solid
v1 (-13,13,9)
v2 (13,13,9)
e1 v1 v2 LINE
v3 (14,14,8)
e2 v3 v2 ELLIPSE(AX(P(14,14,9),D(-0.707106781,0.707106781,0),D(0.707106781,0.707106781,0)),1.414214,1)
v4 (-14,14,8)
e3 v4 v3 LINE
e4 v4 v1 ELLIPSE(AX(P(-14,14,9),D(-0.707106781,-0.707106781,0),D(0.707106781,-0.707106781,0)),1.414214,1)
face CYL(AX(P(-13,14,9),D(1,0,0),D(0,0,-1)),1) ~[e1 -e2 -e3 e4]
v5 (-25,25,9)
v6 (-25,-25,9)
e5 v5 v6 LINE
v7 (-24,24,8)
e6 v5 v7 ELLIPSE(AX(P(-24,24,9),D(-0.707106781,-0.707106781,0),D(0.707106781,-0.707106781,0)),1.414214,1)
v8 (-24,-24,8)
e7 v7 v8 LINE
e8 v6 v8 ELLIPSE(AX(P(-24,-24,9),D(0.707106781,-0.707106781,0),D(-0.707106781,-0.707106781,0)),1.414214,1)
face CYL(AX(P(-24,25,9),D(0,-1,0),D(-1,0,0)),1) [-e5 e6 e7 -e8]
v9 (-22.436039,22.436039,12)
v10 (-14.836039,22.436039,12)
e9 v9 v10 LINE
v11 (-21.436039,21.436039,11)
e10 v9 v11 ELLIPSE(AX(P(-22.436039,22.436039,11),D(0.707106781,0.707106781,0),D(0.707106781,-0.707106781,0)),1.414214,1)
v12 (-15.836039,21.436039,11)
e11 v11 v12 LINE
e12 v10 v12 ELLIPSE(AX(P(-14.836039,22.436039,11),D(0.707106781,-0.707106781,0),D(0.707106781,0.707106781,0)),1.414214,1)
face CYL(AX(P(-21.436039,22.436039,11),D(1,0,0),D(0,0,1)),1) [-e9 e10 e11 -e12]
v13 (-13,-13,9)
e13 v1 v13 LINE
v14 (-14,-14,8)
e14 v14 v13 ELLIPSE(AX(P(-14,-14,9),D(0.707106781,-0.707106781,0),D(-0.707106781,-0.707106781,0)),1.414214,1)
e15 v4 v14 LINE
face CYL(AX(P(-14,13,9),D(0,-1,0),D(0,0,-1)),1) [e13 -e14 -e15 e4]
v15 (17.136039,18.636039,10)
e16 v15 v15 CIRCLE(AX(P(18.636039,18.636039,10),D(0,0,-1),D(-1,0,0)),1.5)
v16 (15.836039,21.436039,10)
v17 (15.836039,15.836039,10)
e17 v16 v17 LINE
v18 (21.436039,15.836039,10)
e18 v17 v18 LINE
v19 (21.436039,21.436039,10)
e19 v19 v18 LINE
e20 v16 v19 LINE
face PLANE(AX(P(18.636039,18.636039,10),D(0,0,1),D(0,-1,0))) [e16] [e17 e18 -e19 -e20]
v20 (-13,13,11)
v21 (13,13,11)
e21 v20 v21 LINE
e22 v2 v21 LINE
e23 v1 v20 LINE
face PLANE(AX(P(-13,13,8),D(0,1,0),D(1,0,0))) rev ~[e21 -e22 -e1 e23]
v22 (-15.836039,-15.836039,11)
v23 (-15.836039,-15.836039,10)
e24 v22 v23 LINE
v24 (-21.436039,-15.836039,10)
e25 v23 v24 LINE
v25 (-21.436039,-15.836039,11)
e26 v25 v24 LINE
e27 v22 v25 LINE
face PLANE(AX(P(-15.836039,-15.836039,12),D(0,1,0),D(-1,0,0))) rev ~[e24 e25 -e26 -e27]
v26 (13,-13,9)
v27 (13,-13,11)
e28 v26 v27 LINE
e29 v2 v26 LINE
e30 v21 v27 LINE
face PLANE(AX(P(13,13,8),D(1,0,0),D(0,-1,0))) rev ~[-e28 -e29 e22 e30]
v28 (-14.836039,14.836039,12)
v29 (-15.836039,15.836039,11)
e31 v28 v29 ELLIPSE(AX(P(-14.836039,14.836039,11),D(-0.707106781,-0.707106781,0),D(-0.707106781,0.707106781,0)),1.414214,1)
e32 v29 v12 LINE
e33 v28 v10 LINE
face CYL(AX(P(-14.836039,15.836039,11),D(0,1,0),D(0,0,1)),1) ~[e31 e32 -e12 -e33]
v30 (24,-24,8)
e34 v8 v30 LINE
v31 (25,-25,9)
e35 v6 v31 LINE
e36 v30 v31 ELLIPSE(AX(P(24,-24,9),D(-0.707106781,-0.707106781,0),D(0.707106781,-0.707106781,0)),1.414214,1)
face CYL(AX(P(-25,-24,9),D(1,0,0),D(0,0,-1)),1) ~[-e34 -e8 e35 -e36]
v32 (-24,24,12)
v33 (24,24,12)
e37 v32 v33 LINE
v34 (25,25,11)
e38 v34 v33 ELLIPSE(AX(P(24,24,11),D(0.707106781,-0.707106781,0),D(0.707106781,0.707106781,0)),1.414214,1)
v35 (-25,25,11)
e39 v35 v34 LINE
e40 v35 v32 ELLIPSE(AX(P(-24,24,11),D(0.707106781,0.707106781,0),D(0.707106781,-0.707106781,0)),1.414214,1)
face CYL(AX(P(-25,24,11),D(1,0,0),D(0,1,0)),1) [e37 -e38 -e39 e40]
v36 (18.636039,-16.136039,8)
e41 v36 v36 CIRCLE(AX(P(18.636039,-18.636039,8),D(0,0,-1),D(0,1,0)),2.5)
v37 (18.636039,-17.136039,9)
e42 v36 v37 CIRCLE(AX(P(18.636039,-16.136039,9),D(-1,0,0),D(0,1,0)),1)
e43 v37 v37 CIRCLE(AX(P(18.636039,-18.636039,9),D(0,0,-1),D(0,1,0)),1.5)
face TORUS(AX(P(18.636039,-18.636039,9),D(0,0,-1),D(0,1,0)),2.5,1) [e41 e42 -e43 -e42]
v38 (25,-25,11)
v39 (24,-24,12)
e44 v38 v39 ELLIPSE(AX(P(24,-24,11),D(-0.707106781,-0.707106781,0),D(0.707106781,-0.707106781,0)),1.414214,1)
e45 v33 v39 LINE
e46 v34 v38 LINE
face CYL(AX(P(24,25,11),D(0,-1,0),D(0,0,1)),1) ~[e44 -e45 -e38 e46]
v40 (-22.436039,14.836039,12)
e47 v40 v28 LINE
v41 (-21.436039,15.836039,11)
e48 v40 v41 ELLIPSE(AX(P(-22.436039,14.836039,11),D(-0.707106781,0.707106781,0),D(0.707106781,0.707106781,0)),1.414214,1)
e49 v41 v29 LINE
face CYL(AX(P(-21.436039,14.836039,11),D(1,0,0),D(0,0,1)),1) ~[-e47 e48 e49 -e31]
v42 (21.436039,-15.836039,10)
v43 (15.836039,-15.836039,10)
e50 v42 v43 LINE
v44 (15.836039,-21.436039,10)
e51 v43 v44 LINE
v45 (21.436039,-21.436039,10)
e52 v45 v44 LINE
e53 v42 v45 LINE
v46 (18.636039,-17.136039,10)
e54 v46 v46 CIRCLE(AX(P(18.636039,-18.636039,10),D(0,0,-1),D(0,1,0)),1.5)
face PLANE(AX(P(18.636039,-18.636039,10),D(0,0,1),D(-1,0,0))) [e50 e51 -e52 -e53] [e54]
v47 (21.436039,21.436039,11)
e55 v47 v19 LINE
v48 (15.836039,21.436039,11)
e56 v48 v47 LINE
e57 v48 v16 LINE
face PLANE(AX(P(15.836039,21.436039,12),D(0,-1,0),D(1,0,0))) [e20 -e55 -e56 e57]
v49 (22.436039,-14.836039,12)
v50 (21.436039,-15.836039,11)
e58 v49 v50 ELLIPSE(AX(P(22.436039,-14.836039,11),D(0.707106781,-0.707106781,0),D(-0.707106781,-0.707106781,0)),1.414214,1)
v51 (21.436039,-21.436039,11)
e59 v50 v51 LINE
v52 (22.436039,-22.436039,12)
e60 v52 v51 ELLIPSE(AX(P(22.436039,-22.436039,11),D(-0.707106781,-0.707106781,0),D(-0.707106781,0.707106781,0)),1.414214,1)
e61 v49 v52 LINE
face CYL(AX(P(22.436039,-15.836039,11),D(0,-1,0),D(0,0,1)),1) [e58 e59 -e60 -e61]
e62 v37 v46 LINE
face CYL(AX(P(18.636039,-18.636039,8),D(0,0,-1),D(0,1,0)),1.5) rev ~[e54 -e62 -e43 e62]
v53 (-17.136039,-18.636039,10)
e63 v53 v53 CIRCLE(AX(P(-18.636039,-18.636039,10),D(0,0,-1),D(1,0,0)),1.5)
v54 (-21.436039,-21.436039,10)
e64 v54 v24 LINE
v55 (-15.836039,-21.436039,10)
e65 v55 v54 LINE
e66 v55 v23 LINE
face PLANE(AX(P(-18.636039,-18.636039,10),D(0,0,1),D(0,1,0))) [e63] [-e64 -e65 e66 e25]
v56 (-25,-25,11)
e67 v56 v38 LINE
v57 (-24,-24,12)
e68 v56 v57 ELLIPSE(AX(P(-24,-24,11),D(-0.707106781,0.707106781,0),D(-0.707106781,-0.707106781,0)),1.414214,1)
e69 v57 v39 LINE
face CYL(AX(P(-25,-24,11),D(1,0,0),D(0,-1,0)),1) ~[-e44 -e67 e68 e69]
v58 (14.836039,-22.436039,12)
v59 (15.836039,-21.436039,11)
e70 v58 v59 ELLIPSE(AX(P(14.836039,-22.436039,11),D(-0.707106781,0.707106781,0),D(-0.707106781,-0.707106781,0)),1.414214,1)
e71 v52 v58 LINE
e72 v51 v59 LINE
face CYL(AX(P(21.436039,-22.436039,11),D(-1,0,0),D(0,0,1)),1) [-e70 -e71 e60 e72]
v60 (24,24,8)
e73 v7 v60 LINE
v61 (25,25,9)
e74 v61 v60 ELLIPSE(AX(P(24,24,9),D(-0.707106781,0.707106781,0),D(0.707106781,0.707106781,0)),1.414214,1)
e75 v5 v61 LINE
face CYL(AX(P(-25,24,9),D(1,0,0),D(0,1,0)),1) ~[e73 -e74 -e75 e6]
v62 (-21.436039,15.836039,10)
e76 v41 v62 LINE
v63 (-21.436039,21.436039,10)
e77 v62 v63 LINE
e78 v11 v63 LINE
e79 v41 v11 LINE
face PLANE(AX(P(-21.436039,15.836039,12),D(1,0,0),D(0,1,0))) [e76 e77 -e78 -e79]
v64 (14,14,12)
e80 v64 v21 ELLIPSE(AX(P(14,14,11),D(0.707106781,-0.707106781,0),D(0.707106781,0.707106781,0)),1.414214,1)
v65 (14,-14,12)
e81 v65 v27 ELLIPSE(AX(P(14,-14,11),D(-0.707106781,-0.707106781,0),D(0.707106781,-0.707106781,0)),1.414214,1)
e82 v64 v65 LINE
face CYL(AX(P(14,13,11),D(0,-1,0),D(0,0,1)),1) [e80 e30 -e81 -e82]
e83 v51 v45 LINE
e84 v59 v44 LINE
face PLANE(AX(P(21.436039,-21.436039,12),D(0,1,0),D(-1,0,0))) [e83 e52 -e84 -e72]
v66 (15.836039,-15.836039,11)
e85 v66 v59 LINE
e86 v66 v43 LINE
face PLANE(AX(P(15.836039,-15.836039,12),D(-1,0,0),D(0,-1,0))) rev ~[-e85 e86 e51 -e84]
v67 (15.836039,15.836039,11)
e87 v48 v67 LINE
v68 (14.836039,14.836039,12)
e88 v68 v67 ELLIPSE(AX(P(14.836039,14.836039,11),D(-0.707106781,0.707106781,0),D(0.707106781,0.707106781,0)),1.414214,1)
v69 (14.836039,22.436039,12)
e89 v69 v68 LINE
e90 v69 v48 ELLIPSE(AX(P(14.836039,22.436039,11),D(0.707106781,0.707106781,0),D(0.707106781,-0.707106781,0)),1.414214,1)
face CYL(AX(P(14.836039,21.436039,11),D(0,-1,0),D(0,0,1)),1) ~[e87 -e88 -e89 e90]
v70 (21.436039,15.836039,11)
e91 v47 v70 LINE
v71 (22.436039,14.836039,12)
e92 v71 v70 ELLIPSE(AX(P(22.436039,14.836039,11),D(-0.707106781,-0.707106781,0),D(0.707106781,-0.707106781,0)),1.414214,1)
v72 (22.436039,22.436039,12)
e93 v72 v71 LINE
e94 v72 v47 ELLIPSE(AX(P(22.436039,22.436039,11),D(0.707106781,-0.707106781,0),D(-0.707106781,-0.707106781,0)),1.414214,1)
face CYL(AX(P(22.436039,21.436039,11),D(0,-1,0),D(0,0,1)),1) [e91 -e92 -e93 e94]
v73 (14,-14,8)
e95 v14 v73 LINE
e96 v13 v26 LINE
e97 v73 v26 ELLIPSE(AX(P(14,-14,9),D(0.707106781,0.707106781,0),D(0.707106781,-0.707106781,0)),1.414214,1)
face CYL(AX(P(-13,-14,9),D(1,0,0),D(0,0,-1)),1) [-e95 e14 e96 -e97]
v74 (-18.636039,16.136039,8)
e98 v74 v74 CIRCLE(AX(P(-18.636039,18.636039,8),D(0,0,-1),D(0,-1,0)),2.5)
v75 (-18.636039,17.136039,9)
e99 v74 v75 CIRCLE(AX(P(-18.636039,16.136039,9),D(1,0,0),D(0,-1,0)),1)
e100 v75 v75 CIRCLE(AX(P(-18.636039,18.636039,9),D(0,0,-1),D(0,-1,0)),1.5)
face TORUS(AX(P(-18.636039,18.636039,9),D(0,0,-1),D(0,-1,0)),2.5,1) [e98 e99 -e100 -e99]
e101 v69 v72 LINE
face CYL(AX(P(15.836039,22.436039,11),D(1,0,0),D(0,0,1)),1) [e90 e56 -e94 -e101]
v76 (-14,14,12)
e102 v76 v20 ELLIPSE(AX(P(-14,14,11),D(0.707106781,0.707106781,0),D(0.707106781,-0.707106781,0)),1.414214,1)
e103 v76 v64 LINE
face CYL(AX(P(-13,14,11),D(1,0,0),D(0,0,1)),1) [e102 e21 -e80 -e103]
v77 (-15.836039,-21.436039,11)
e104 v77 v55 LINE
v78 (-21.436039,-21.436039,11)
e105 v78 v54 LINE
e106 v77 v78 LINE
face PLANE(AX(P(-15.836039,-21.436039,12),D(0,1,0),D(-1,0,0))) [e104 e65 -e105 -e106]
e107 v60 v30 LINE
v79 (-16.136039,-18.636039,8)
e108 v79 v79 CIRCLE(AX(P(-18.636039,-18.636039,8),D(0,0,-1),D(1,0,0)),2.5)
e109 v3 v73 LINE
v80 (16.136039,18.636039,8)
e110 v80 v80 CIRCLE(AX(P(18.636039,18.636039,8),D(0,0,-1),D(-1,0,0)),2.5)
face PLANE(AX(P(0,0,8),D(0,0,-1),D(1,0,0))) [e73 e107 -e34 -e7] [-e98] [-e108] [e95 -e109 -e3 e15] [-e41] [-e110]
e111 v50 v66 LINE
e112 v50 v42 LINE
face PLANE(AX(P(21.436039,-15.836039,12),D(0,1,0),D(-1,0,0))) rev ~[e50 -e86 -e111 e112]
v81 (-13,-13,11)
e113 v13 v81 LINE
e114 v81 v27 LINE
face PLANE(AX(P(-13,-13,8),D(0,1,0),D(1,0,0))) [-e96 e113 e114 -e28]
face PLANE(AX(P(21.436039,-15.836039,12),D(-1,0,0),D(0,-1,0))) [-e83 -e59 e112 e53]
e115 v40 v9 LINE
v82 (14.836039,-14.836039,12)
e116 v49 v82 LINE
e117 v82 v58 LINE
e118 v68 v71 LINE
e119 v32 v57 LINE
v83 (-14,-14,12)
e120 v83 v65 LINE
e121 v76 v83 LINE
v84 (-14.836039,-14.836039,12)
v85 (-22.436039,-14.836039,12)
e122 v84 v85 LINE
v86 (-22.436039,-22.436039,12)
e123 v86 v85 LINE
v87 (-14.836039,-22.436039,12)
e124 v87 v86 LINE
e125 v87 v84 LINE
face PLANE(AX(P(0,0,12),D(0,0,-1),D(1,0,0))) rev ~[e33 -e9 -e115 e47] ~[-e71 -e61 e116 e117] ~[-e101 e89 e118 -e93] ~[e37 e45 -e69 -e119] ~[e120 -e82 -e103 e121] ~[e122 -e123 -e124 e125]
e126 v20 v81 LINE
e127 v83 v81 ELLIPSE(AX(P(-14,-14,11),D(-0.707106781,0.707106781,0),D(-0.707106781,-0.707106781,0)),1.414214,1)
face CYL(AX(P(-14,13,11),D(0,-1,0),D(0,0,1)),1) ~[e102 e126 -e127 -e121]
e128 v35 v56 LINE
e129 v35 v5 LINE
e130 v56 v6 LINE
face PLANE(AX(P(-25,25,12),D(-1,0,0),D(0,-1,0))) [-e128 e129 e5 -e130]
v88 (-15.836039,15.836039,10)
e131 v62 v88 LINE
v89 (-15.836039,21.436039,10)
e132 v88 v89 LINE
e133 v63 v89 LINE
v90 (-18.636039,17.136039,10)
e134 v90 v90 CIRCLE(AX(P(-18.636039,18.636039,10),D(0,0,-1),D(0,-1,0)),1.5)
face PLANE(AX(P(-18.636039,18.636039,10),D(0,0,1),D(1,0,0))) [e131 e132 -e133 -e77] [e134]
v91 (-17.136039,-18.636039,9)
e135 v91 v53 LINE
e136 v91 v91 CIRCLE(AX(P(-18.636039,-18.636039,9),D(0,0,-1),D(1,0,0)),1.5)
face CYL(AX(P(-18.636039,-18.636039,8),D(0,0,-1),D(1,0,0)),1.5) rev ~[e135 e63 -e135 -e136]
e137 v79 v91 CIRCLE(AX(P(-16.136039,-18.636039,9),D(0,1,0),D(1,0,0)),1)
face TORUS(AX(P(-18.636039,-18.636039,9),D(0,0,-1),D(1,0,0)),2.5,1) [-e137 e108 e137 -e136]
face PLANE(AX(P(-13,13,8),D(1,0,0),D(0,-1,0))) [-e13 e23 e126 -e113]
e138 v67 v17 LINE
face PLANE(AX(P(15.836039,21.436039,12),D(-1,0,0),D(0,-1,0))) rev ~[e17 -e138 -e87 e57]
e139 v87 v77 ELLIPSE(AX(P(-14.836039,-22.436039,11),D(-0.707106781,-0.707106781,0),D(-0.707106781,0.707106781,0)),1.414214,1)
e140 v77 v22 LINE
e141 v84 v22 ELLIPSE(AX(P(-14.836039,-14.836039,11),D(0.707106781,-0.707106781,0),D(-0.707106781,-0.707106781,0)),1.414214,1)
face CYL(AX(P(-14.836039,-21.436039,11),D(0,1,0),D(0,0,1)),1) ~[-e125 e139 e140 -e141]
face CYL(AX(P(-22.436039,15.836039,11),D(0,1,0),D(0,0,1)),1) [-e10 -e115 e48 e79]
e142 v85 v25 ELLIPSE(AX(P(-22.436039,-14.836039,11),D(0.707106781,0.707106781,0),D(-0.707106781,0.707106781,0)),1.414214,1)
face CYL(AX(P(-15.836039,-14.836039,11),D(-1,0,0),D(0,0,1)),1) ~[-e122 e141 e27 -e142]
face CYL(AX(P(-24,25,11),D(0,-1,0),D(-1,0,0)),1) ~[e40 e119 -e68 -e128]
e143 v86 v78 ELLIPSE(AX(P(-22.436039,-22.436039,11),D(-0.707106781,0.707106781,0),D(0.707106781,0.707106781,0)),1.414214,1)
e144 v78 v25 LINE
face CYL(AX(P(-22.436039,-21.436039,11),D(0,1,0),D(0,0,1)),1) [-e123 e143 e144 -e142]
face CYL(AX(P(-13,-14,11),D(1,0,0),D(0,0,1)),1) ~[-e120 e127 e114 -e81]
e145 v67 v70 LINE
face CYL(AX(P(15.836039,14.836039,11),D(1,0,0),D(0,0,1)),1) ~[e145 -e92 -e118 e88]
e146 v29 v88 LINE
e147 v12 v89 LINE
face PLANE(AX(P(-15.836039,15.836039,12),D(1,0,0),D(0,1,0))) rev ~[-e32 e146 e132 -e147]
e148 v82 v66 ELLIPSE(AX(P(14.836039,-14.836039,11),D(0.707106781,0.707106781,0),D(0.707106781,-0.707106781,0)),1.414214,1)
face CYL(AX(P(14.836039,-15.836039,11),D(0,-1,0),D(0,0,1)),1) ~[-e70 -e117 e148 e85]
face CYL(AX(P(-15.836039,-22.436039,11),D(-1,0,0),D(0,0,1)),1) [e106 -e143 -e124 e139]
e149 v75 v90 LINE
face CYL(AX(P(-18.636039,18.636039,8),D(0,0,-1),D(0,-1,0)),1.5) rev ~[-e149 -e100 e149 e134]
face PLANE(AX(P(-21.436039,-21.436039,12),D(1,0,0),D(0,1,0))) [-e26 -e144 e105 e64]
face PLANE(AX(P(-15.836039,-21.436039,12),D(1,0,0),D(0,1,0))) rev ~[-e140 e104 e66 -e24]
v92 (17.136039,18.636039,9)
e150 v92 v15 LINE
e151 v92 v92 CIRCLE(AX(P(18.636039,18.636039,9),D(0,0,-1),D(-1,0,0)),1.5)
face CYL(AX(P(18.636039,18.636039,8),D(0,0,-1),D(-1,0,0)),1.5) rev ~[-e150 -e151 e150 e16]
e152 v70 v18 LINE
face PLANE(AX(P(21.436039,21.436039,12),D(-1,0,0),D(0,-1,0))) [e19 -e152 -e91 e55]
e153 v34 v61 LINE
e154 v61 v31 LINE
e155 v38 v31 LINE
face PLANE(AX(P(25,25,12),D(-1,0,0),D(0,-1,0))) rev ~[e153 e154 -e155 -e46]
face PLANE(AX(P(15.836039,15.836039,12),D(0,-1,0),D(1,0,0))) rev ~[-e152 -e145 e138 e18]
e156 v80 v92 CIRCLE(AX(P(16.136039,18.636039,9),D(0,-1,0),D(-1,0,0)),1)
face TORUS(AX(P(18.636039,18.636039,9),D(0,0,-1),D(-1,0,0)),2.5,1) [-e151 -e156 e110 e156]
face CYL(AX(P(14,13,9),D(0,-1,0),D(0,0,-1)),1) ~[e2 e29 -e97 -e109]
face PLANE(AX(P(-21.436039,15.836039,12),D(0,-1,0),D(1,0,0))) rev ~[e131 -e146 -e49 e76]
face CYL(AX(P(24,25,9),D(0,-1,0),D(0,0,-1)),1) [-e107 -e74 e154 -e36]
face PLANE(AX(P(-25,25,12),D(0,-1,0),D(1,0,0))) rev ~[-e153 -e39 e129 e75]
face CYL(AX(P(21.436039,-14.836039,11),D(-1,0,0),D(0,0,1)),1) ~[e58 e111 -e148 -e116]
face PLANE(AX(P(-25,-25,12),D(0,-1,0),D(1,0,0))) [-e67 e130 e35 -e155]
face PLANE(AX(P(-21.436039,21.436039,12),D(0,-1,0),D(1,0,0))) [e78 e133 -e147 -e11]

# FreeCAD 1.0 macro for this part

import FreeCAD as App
import Part
import Sketcher


def edges_at(feature, points):
    """Names of the edges that pass closest to the given points."""
    edges = feature.Shape.Edges
    near = lambda p: min(range(len(edges)), key=lambda i: edges[i].distToShape(Part.Vertex(*p))[0])
    return sorted({f"Edge{near(p) + 1}" for p in points})

doc = App.newDocument("Part")
body = doc.addObject("PartDesign::Body", "Body")

# Sketch on XY plane
sketch1 = body.newObject("Sketcher::SketchObject", "Sketch")
sketch1.AttachmentSupport = (doc.getObject("XY_Plane"), [""])
sketch1.MapMode = "FlatFace"
sketch1.addGeometry([
    Part.LineSegment(App.Vector(-25, 25, 0), App.Vector(-25, -25, 0)),
    Part.LineSegment(App.Vector(-25, -25, 0), App.Vector(25, -25, 0)),
    Part.LineSegment(App.Vector(25, -25, 0), App.Vector(25, 25, 0)),
    Part.LineSegment(App.Vector(25, 25, 0), App.Vector(-25, 25, 0)),
], False)
sketch1.addConstraint([
    Sketcher.Constraint("Coincident", 0, 2, 1, 1),
    Sketcher.Constraint("Coincident", 1, 2, 2, 1),
    Sketcher.Constraint("Coincident", 2, 2, 3, 1),
    Sketcher.Constraint("Coincident", 3, 2, 0, 1),
    Sketcher.Constraint("Vertical", 0),
    Sketcher.Constraint("Horizontal", 1),
    Sketcher.Constraint("Vertical", 2),
    Sketcher.Constraint("Horizontal", 3),
    Sketcher.Constraint("Symmetric", 0, 2, 2, 2, -1, 1),
    Sketcher.Constraint("Equal", 3, 0),
    Sketcher.Constraint("DistanceX", 1, 1, 1, 2, 50.0),
])
pad1 = body.newObject("PartDesign::Pad", "Pad")
pad1.Profile = sketch1
pad1.Length = 4

# Sketch on XY plane
sketch2 = body.newObject("Sketcher::SketchObject", "Sketch001")
sketch2.AttachmentSupport = (doc.getObject("XY_Plane"), [""])
sketch2.MapMode = "FlatFace"
sketch2.AttachmentOffset = App.Placement(App.Vector(0, 0, 4), App.Rotation())
sketch2.addGeometry([
    Part.LineSegment(App.Vector(-13, 13, 0), App.Vector(-13, -13, 0)),
    Part.LineSegment(App.Vector(-13, -13, 0), App.Vector(13, -13, 0)),
    Part.LineSegment(App.Vector(13, -13, 0), App.Vector(13, 13, 0)),
    Part.LineSegment(App.Vector(13, 13, 0), App.Vector(-13, 13, 0)),
], False)
sketch2.addConstraint([
    Sketcher.Constraint("Coincident", 0, 2, 1, 1),
    Sketcher.Constraint("Coincident", 1, 2, 2, 1),
    Sketcher.Constraint("Coincident", 2, 2, 3, 1),
    Sketcher.Constraint("Coincident", 3, 2, 0, 1),
    Sketcher.Constraint("Vertical", 0),
    Sketcher.Constraint("Horizontal", 1),
    Sketcher.Constraint("Vertical", 2),
    Sketcher.Constraint("Horizontal", 3),
    Sketcher.Constraint("Symmetric", 0, 2, 2, 2, -1, 1),
    Sketcher.Constraint("Equal", 3, 0),
    Sketcher.Constraint("DistanceX", 1, 1, 1, 2, 26.0),
])
pocket1 = body.newObject("PartDesign::Pocket", "Pocket")
pocket1.Profile = sketch2
pocket1.Length = 10

# Sketch on XY plane
sketch3 = body.newObject("Sketcher::SketchObject", "Sketch002")
sketch3.AttachmentSupport = (doc.getObject("XY_Plane"), [""])
sketch3.MapMode = "FlatFace"
sketch3.AttachmentOffset = App.Placement(App.Vector(0, 0, 4), App.Rotation())
sketch3.addGeometry(Part.Circle(App.Vector(-18.6, 18.6, 0), App.Vector(0, 0, 1), 1.5), False)
sketch3.addConstraint([
    Sketcher.Constraint("Diameter", 0, 3.0),
    Sketcher.Constraint("DistanceX", 0, 3, -1, 1, 18.636039),
    Sketcher.Constraint("DistanceY", -1, 1, 0, 3, 18.636039),
])
pocket2 = body.newObject("PartDesign::Pocket", "Pocket001")
pocket2.Profile = sketch3
pocket2.Length = 5
doc.recompute()

polarpattern = body.newObject("PartDesign::PolarPattern", "PolarPattern")
polarpattern.Originals = [pocket2]
polarpattern.Axis = (doc.getObject("Z_Axis"), [""])
polarpattern.Angle = 360
polarpattern.Occurrences = 4
body.Tip = polarpattern

# Sketch on XY plane
sketch4 = body.newObject("Sketcher::SketchObject", "Sketch003")
sketch4.AttachmentSupport = (doc.getObject("XY_Plane"), [""])
sketch4.MapMode = "FlatFace"
sketch4.addGeometry([
    Part.LineSegment(App.Vector(-21, -21, 0), App.Vector(-21, -16, 0)),
    Part.LineSegment(App.Vector(-21, -16, 0), App.Vector(-16, -16, 0)),
    Part.LineSegment(App.Vector(-16, -16, 0), App.Vector(-16, -21, 0)),
    Part.LineSegment(App.Vector(-16, -21, 0), App.Vector(-21, -21, 0)),
], False)
sketch4.addConstraint([
    Sketcher.Constraint("Coincident", 0, 2, 1, 1),
    Sketcher.Constraint("Coincident", 1, 2, 2, 1),
    Sketcher.Constraint("Coincident", 2, 2, 3, 1),
    Sketcher.Constraint("Coincident", 3, 2, 0, 1),
    Sketcher.Constraint("Vertical", 0),
    Sketcher.Constraint("Horizontal", 1),
    Sketcher.Constraint("Vertical", 2),
    Sketcher.Constraint("Horizontal", 3),
    Sketcher.Constraint("Equal", 3, 0),
    Sketcher.Constraint("DistanceX", 1, 1, 1, 2, 5.6),
    Sketcher.Constraint("DistanceX", 0, 2, -1, 1, 21.436039),
    Sketcher.Constraint("DistanceY", 0, 2, -1, 1, 15.836039),
])
pocket3 = body.newObject("PartDesign::Pocket", "Pocket002")
pocket3.Profile = sketch4
pocket3.Length = 2
pocket3.Reversed = True
doc.recompute()

polarpattern2 = body.newObject("PartDesign::PolarPattern", "PolarPattern001")
polarpattern2.Originals = [pocket3]
polarpattern2.Axis = (doc.getObject("Z_Axis"), [""])
polarpattern2.Angle = 360
polarpattern2.Occurrences = 4
body.Tip = polarpattern2
doc.recompute()

fillet = body.newObject("PartDesign::Fillet", "Fillet")
fillet.Base = (polarpattern2, edges_at(polarpattern2, [
    (-25, 0, 0),
    (0, -25, 0),
    (0, 25, 0),
    (25, 0, 0),
    (-18.636, -21.436, 0),
    (-15.836, -18.636, 0),
    (-21.436, -18.636, 0),
    (-18.636, -15.836, 0),
    (21.436, -18.636, 0),
    (18.636, -15.836, 0),
    (15.836, -18.636, 0),
    (18.636, -21.436, 0),
    (0, -13, 0),
    (13, 0, 0),
    (-13, 0, 0),
    (0, 13, 0),
    (-21.436, 18.636, 0),
    (-18.636, 15.836, 0),
    (-15.836, 18.636, 0),
    (-18.636, 21.436, 0),
    (18.636, 21.436, 0),
    (15.836, 18.636, 0),
    (18.636, 15.836, 0),
    (21.436, 18.636, 0),
]))
fillet.Radius = 1
doc.recompute()

fillet2 = body.newObject("PartDesign::Fillet", "Fillet001")
fillet2.Base = (fillet, edges_at(fillet, [
    (-25, 0, 4),
    (0, -25, 4),
    (0, 25, 4),
    (25, 0, 4),
    (-18.636, -20.136, 4),
    (20.136, -18.636, 4),
    (-20.136, 18.636, 4),
    (0, -13, 4),
    (13, 0, 4),
    (-13, 0, 4),
    (0, 13, 4),
    (18.636, 20.136, 4),
]))
fillet2.Radius = 1
body2 = doc.addObject("PartDesign::Body", "Body001")
doc.recompute()

body.Placement = App.Placement(App.Vector(0, 0, 12), App.Rotation(App.Vector(1, 0, 0), 180))
boolean = body2.newObject("PartDesign::Boolean", "Boolean")
boolean.Type = "Fuse"
boolean.addObjects([body])

doc.recompute()
